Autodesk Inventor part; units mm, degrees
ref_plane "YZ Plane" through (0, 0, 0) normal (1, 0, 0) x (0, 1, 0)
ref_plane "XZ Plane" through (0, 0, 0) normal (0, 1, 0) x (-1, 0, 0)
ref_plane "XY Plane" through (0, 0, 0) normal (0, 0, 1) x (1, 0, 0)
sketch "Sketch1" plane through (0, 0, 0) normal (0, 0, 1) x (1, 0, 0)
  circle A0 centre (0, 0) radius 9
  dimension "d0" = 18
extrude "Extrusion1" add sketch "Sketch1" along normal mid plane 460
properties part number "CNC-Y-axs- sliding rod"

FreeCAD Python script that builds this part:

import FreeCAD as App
import Part
import Sketcher

V = App.Vector

doc = App.newDocument("Part")
body = doc.addObject("PartDesign::Body", "Body")

sketch1 = body.newObject("Sketcher::SketchObject", "Sketch")
sketch1.AttachmentSupport = (doc.getObject("XY_Plane"), [""])
sketch1.MapMode = "FlatFace"
sketch1.addGeometry(Part.Circle(V(0, 0, 0), V(0, 0, 1), 9), False)
sketch1.addConstraint([
    Sketcher.Constraint("Coincident", 0, 3, -1, 1),
    Sketcher.Constraint("Diameter", 0, 18.0),
])
pad1 = body.newObject("PartDesign::Pad", "Pad")
pad1.Profile = sketch1
pad1.Length = 460
pad1.Midplane = True

doc.recompute()
